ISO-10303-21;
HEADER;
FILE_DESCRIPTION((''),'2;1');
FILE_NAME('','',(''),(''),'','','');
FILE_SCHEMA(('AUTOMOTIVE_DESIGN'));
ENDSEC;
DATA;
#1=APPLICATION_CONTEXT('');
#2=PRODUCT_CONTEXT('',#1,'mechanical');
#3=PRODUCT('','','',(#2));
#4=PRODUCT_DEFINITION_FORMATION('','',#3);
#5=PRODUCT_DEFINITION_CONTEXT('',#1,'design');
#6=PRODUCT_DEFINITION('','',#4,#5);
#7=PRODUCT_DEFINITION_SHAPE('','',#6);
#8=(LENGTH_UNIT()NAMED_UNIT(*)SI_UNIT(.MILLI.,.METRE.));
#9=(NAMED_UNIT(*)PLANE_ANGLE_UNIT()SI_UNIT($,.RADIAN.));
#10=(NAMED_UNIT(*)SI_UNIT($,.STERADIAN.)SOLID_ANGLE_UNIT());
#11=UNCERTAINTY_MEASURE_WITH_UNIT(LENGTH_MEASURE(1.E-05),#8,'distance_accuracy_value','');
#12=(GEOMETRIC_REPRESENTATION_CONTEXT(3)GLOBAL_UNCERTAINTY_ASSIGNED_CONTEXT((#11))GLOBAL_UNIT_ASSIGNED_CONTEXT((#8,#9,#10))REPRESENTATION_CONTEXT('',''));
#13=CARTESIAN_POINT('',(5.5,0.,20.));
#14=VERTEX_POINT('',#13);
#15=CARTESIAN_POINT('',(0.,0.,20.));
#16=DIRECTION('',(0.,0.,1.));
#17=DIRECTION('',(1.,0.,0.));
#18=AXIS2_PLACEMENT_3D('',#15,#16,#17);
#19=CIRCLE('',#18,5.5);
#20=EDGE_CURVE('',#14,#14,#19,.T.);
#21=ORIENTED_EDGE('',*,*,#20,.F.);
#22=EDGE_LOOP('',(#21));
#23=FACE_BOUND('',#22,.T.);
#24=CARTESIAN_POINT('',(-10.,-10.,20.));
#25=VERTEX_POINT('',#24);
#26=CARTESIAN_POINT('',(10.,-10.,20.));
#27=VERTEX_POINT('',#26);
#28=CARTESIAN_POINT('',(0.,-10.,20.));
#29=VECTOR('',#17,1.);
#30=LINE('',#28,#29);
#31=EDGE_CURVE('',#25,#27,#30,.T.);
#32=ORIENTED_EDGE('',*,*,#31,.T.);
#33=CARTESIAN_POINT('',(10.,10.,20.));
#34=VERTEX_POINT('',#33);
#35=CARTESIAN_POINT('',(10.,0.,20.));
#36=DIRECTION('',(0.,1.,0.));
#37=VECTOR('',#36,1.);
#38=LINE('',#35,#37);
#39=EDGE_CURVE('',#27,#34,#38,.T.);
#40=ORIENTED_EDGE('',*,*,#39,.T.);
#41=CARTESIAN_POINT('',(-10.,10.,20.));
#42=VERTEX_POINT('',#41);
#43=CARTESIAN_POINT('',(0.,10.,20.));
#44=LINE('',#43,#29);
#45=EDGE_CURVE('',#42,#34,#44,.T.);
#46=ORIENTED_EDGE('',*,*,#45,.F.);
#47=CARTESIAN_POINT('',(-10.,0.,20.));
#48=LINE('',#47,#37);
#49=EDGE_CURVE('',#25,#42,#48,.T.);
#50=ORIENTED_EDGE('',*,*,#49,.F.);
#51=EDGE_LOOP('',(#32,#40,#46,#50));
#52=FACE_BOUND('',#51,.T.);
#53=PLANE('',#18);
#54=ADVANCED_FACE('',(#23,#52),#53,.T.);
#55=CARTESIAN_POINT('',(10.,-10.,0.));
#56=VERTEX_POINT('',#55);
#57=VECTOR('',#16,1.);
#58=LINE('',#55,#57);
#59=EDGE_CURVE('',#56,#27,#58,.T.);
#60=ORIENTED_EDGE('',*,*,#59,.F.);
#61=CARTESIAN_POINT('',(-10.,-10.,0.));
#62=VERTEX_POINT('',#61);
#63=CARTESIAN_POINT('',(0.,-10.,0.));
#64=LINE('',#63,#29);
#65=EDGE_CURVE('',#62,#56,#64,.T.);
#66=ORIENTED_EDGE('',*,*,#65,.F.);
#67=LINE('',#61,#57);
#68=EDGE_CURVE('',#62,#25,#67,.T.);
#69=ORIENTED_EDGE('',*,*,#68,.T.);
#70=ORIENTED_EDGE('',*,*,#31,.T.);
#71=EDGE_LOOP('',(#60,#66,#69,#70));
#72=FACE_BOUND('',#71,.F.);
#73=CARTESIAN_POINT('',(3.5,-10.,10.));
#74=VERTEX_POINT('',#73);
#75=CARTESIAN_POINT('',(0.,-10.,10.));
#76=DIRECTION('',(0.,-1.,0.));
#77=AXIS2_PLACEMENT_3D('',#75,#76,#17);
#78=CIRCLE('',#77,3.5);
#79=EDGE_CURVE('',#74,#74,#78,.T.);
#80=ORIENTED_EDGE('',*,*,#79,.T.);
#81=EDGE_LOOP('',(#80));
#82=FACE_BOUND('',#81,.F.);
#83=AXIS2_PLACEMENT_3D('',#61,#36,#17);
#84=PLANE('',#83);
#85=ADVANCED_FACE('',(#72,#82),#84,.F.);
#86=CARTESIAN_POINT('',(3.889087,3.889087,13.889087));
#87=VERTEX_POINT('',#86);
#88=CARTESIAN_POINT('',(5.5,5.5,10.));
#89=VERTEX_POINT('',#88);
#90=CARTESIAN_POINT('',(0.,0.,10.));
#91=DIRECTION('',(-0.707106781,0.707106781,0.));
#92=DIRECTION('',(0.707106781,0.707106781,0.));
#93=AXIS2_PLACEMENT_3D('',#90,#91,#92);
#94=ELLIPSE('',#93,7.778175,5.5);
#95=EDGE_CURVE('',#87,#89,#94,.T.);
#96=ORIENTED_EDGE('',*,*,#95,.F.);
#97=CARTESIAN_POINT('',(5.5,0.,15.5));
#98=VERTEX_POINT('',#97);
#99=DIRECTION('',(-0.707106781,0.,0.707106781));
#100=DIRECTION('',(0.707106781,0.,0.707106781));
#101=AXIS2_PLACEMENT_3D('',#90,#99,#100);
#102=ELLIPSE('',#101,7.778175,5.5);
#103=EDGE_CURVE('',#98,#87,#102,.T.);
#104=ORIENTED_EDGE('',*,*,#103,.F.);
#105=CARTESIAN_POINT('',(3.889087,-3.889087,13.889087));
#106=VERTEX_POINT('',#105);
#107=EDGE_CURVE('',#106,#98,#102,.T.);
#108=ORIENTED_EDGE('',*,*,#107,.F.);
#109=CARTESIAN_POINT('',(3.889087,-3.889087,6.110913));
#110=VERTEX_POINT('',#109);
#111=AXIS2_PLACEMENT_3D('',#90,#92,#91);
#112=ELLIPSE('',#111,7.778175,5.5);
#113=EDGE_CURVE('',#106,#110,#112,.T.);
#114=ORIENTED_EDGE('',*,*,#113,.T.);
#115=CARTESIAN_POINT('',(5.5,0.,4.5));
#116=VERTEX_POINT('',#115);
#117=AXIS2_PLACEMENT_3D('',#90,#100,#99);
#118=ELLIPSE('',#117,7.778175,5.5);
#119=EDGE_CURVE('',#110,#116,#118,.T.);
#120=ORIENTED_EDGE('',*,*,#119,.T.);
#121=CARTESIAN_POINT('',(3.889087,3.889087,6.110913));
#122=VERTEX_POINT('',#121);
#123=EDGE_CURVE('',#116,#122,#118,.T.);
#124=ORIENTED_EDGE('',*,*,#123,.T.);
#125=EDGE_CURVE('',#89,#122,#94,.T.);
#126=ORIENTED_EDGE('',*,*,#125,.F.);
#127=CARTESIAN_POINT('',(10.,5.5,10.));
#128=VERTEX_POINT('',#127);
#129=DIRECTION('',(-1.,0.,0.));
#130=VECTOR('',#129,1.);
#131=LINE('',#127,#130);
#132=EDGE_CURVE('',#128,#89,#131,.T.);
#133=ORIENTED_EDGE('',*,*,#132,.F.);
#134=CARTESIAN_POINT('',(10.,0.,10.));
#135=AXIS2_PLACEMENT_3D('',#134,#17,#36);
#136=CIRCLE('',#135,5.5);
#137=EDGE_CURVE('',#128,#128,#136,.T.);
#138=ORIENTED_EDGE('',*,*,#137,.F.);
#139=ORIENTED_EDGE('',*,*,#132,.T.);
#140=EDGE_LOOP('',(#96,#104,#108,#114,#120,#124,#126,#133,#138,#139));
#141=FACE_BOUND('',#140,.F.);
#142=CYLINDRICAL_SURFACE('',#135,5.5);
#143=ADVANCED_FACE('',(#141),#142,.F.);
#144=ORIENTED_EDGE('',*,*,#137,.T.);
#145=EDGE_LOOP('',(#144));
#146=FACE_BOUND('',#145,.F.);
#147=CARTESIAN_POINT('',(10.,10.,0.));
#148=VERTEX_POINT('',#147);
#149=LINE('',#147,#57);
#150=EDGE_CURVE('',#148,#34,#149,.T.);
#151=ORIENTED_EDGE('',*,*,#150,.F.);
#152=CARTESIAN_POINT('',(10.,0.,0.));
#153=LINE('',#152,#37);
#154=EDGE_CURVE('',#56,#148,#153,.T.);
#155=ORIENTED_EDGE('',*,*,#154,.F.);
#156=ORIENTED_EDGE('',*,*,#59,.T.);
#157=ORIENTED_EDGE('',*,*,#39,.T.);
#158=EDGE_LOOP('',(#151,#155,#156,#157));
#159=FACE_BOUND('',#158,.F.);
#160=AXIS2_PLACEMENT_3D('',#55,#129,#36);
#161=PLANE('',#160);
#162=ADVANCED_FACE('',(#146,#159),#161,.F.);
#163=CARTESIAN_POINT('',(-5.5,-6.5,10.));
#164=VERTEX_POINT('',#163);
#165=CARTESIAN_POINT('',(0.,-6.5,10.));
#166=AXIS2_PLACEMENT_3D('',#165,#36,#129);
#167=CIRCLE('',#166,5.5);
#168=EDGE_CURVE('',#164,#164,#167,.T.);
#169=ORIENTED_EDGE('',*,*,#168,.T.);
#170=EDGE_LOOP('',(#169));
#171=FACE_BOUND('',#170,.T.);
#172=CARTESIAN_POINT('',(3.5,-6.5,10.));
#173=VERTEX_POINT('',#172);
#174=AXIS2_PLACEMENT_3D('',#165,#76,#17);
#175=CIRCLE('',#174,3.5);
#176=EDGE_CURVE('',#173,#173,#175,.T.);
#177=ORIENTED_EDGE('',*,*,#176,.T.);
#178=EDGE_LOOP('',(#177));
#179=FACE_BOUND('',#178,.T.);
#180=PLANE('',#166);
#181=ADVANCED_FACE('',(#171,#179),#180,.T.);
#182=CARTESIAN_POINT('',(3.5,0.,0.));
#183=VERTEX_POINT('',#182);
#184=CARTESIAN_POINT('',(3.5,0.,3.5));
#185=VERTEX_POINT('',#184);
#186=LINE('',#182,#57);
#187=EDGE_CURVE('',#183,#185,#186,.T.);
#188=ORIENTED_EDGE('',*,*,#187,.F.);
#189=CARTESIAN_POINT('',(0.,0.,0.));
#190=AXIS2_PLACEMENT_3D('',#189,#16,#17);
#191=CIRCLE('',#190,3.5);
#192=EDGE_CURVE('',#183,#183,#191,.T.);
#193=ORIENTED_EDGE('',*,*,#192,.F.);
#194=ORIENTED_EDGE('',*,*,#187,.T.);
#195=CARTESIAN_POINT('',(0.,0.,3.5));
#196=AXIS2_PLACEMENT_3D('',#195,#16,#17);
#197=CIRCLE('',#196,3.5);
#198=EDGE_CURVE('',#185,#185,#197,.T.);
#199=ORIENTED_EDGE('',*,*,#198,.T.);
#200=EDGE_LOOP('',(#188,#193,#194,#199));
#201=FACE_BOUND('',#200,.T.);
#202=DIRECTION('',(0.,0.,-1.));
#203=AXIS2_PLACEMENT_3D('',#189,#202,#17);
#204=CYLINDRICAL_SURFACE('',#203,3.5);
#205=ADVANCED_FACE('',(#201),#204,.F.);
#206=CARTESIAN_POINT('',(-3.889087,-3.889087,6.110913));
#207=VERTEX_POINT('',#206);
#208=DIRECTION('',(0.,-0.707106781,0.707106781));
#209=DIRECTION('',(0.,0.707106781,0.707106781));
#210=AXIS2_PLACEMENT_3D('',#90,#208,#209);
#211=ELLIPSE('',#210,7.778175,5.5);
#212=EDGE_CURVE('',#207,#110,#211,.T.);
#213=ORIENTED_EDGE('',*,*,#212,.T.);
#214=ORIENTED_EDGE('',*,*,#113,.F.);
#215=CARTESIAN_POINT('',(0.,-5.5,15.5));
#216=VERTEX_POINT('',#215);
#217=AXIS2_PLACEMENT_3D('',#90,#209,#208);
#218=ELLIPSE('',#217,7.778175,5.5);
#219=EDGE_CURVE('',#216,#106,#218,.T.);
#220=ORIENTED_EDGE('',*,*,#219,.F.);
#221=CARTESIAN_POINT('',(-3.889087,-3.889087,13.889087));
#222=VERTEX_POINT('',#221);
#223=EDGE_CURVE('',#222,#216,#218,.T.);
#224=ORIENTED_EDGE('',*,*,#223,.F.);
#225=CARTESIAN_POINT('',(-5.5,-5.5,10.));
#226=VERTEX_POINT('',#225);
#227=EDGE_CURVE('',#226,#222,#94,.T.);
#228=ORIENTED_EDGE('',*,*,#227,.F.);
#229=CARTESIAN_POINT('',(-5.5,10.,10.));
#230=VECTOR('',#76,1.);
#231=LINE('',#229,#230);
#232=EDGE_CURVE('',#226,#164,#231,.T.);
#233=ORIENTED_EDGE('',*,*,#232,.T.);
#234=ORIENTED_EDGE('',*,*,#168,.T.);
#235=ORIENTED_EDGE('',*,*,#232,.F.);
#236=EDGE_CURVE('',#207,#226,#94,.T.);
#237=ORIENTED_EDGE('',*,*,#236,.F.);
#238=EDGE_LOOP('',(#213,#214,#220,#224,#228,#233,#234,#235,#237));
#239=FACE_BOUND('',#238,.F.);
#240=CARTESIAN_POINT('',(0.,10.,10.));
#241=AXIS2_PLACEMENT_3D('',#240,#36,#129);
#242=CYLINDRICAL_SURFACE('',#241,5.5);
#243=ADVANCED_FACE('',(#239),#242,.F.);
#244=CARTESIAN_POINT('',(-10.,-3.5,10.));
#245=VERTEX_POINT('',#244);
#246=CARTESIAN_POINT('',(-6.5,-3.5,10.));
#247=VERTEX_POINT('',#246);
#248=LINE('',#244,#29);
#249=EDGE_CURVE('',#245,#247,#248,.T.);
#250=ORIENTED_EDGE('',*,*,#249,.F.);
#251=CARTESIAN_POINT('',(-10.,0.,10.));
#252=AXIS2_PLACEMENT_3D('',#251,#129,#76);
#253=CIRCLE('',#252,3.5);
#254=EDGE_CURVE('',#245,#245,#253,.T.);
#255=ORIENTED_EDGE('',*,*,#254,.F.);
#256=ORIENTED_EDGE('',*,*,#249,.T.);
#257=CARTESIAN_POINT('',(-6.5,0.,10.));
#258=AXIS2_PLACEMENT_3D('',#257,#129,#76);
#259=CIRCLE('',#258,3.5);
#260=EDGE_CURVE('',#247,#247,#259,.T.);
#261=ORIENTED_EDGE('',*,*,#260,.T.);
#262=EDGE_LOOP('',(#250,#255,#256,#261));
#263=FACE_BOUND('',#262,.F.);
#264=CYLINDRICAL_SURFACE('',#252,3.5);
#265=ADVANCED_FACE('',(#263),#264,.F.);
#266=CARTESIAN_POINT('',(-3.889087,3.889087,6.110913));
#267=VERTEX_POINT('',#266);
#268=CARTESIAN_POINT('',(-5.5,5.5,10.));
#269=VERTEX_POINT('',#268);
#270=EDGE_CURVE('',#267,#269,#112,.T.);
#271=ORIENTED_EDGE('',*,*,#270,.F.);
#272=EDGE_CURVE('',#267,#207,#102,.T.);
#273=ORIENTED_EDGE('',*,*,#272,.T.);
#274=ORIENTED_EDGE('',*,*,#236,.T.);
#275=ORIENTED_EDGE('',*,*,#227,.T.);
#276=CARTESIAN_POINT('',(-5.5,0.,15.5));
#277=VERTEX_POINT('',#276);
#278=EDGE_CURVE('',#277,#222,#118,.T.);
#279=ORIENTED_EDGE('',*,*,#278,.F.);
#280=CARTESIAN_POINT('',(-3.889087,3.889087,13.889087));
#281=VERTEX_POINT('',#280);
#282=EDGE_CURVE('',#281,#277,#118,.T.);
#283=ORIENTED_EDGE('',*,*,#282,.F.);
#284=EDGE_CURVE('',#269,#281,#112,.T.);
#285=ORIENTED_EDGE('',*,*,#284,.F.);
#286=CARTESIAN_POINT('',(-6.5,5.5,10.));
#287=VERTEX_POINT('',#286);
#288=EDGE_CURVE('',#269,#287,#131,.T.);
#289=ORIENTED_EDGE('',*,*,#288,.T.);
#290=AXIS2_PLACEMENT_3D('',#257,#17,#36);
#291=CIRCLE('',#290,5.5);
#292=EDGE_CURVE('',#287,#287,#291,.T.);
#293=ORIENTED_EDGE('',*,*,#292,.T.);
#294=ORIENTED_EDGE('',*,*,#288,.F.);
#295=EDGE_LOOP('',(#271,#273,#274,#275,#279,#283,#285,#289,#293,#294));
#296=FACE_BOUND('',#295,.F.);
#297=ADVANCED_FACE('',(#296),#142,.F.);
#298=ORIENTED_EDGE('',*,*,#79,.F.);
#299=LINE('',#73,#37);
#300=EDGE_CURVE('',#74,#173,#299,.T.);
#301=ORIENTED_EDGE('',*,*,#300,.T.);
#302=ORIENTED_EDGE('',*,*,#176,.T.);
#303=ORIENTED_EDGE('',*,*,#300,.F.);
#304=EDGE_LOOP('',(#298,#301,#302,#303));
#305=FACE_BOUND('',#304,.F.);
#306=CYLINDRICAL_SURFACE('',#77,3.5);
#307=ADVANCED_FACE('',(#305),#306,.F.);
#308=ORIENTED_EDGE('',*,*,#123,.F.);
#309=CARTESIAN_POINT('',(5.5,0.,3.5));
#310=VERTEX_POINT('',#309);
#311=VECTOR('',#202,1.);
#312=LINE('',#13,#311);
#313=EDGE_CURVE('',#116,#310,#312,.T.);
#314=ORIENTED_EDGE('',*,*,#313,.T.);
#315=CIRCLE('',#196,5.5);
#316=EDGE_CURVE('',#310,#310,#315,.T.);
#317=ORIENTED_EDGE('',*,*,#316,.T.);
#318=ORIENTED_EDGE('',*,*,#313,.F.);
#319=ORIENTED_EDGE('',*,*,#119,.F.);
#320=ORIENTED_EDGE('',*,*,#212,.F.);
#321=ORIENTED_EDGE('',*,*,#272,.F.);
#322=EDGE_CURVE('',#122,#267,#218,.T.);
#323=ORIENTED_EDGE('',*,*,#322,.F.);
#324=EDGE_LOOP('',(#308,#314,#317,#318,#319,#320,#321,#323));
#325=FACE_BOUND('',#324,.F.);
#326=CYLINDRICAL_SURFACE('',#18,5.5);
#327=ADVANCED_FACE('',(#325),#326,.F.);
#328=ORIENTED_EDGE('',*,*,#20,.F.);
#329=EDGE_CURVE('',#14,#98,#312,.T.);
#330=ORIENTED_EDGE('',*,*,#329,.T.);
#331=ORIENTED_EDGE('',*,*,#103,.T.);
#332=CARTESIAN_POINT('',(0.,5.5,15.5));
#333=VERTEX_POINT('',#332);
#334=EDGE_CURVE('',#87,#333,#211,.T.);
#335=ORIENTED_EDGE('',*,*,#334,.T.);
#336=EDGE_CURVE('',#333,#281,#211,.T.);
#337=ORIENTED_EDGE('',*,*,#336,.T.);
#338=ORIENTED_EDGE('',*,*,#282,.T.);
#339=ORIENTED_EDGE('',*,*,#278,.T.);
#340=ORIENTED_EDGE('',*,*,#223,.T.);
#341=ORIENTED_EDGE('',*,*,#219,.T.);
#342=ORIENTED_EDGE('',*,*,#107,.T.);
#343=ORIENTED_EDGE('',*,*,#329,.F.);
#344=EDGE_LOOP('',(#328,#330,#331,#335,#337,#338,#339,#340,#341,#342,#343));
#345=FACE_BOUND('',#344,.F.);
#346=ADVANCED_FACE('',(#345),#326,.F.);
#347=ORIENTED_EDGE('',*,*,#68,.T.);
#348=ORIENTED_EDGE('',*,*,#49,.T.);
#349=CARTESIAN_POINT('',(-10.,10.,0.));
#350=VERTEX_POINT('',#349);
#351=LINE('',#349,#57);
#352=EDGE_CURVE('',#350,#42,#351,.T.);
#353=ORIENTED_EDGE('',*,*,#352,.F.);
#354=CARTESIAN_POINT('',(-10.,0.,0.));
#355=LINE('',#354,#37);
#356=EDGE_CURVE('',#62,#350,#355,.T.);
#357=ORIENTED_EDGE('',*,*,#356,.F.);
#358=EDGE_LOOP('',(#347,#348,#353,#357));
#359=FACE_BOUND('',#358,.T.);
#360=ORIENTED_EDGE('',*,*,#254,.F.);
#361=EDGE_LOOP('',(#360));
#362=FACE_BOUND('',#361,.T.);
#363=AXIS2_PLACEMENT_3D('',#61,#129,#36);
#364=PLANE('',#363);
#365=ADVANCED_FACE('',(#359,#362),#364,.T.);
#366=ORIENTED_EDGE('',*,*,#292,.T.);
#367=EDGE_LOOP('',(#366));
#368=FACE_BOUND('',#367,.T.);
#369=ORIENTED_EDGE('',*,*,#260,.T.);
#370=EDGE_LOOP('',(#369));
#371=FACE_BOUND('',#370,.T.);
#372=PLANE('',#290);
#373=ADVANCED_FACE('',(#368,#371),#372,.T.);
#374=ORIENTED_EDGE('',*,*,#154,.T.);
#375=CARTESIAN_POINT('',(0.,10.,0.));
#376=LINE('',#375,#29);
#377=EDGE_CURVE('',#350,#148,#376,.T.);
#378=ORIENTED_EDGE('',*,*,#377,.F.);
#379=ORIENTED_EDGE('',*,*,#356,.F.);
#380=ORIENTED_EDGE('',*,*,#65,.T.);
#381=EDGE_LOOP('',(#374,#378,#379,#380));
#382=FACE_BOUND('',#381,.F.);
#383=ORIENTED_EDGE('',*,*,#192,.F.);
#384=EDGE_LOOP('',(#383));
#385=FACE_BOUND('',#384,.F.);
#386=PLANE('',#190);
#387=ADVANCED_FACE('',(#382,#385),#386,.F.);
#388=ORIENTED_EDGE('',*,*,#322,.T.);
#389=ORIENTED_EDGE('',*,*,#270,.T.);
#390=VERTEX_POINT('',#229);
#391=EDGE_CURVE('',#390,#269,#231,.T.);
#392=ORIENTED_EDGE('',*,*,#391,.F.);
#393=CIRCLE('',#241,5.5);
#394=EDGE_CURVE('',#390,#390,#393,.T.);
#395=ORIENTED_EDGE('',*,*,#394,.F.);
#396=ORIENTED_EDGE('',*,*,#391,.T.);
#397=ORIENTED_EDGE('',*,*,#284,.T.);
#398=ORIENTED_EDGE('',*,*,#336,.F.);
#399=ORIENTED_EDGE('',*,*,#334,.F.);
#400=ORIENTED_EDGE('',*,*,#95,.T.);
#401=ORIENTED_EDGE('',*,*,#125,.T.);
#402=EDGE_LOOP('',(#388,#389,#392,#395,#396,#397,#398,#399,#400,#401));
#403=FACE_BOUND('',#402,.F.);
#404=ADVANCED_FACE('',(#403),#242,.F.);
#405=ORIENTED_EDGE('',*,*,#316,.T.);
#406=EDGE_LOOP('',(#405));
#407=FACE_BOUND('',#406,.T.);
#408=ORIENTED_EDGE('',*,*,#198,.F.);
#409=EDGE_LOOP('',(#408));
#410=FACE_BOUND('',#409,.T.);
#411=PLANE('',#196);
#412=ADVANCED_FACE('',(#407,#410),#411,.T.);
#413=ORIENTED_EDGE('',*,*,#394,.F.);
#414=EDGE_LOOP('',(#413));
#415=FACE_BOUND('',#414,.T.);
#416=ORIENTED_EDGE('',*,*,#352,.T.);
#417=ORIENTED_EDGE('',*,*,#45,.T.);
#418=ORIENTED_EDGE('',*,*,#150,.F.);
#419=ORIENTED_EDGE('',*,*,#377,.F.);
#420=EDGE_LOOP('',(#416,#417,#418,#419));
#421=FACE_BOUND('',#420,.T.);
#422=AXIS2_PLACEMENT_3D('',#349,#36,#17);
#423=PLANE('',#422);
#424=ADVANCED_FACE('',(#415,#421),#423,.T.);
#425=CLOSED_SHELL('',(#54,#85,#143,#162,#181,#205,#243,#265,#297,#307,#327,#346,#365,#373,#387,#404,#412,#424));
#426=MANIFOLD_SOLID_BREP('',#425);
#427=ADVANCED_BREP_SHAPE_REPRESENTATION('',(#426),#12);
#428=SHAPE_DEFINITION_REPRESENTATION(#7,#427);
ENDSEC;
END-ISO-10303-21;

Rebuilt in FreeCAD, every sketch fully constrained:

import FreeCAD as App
import Part
import Sketcher

V = App.Vector

doc = App.newDocument("Part")
body = doc.addObject("PartDesign::Body", "Body")

# Sketch on XY plane
sketch1 = body.newObject("Sketcher::SketchObject", "Sketch")
sketch1.AttachmentSupport = (doc.getObject("XY_Plane"), [""])
sketch1.MapMode = "FlatFace"
sketch1.addGeometry(Part.LineSegment(V(-10, 10, 0), V(-10, -10, 0)), False)
sketch1.addGeometry(Part.LineSegment(V(-10, -10, 0), V(10, -10, 0)), False)
sketch1.addGeometry(Part.LineSegment(V(10, -10, 0), V(10, 10, 0)), False)
sketch1.addGeometry(Part.LineSegment(V(10, 10, 0), V(-10, 10, 0)), False)
sketch1.addGeometry(Part.Circle(V(0, 0, 0), V(0, 0, 1), 3.5), False)
sketch1.addConstraint(Sketcher.Constraint("Coincident", 0, 2, 1, 1))
sketch1.addConstraint(Sketcher.Constraint("Coincident", 1, 2, 2, 1))
sketch1.addConstraint(Sketcher.Constraint("Coincident", 2, 2, 3, 1))
sketch1.addConstraint(Sketcher.Constraint("Coincident", 3, 2, 0, 1))
sketch1.addConstraint(Sketcher.Constraint("Vertical", 0))
sketch1.addConstraint(Sketcher.Constraint("Horizontal", 1))
sketch1.addConstraint(Sketcher.Constraint("Vertical", 2))
sketch1.addConstraint(Sketcher.Constraint("Horizontal", 3))
sketch1.addConstraint(Sketcher.Constraint("Coincident", 4, 3, -1, 1))
sketch1.addConstraint(Sketcher.Constraint("Symmetric", 0, 2, 2, 2, -1, 1))
sketch1.addConstraint(Sketcher.Constraint("Equal", 3, 0))
sketch1.addConstraint(Sketcher.Constraint("Diameter", 4, 7.0))
sketch1.addConstraint(Sketcher.Constraint("DistanceX", 1, 1, 1, 2, 20.0))
pad1 = body.newObject("PartDesign::Pad", "Pad")
pad1.Profile = sketch1
pad1.Length = 20

# Sketch on XZ plane
sketch2 = body.newObject("Sketcher::SketchObject", "Sketch001")
sketch2.AttachmentSupport = (doc.getObject("XZ_Plane"), [""])
sketch2.MapMode = "FlatFace"
sketch2.AttachmentOffset = App.Placement(V(0, 0, 10), App.Rotation())
sketch2.addGeometry(Part.Circle(V(0, 10, 0), V(0, 0, 1), 3.5), False)
sketch2.addConstraint(Sketcher.Constraint("PointOnObject", 0, 3, -2))
sketch2.addConstraint(Sketcher.Constraint("Diameter", 0, 7.0))
sketch2.addConstraint(Sketcher.Constraint("DistanceY", -1, 1, 0, 3, 10.0))
pocket1 = body.newObject("PartDesign::Pocket", "Pocket")
pocket1.Profile = sketch2
pocket1.Length = 20

# Sketch on YZ plane
sketch3 = body.newObject("Sketcher::SketchObject", "Sketch002")
sketch3.AttachmentSupport = (doc.getObject("YZ_Plane"), [""])
sketch3.MapMode = "FlatFace"
sketch3.AttachmentOffset = App.Placement(V(0, 0, -10), App.Rotation())
sketch3.addGeometry(Part.Circle(V(0, 10, 0), V(0, 0, 1), 3.5), False)
sketch3.addConstraint(Sketcher.Constraint("PointOnObject", 0, 3, -2))
sketch3.addConstraint(Sketcher.Constraint("Diameter", 0, 7.0))
sketch3.addConstraint(Sketcher.Constraint("DistanceY", -1, 1, 0, 3, 10.0))
pocket2 = body.newObject("PartDesign::Pocket", "Pocket001")
pocket2.Profile = sketch3
pocket2.Length = 20
pocket2.Reversed = True

# Sketch on XY plane
sketch4 = body.newObject("Sketcher::SketchObject", "Sketch003")
sketch4.AttachmentSupport = (doc.getObject("XY_Plane"), [""])
sketch4.MapMode = "FlatFace"
sketch4.AttachmentOffset = App.Placement(V(0, 0, 20), App.Rotation())
sketch4.addGeometry(Part.Circle(V(0, 0, 0), V(0, 0, 1), 5.5), False)
sketch4.addGeometry(Part.Circle(V(0, 0, 0), V(0, 0, 1), 3.5), False)
sketch4.addConstraint(Sketcher.Constraint("Coincident", 0, 3, -1, 1))
sketch4.addConstraint(Sketcher.Constraint("Coincident", 1, 3, -1, 1))
sketch4.addConstraint(Sketcher.Constraint("Diameter", 0, 11.0))
sketch4.addConstraint(Sketcher.Constraint("Diameter", 1, 7.0))
pocket3 = body.newObject("PartDesign::Pocket", "Pocket002")
pocket3.Profile = sketch4
pocket3.Length = 16.5

# Sketch on XZ plane
sketch5 = body.newObject("Sketcher::SketchObject", "Sketch004")
sketch5.AttachmentSupport = (doc.getObject("XZ_Plane"), [""])
sketch5.MapMode = "FlatFace"
sketch5.AttachmentOffset = App.Placement(V(0, 0, -10), App.Rotation())
sketch5.addGeometry(Part.Circle(V(0, 10, 0), V(0, 0, 1), 6), False)
sketch5.addConstraint(Sketcher.Constraint("PointOnObject", 0, 3, -2))
sketch5.addConstraint(Sketcher.Constraint("Diameter", 0, 11.0))
sketch5.addConstraint(Sketcher.Constraint("DistanceY", -1, 1, 0, 3, 10.0))
pocket4 = body.newObject("PartDesign::Pocket", "Pocket003")
pocket4.Profile = sketch5
pocket4.Length = 16.5
pocket4.Reversed = True

# Sketch on YZ plane
sketch6 = body.newObject("Sketcher::SketchObject", "Sketch005")
sketch6.AttachmentSupport = (doc.getObject("YZ_Plane"), [""])
sketch6.MapMode = "FlatFace"
sketch6.AttachmentOffset = App.Placement(V(0, 0, 10), App.Rotation())
sketch6.addGeometry(Part.Circle(V(0, 10, 0), V(0, 0, 1), 6), False)
sketch6.addConstraint(Sketcher.Constraint("PointOnObject", 0, 3, -2))
sketch6.addConstraint(Sketcher.Constraint("Diameter", 0, 11.0))
sketch6.addConstraint(Sketcher.Constraint("DistanceY", -1, 1, 0, 3, 10.0))
pocket5 = body.newObject("PartDesign::Pocket", "Pocket004")
pocket5.Profile = sketch6
pocket5.Length = 16.5

doc.recompute()
